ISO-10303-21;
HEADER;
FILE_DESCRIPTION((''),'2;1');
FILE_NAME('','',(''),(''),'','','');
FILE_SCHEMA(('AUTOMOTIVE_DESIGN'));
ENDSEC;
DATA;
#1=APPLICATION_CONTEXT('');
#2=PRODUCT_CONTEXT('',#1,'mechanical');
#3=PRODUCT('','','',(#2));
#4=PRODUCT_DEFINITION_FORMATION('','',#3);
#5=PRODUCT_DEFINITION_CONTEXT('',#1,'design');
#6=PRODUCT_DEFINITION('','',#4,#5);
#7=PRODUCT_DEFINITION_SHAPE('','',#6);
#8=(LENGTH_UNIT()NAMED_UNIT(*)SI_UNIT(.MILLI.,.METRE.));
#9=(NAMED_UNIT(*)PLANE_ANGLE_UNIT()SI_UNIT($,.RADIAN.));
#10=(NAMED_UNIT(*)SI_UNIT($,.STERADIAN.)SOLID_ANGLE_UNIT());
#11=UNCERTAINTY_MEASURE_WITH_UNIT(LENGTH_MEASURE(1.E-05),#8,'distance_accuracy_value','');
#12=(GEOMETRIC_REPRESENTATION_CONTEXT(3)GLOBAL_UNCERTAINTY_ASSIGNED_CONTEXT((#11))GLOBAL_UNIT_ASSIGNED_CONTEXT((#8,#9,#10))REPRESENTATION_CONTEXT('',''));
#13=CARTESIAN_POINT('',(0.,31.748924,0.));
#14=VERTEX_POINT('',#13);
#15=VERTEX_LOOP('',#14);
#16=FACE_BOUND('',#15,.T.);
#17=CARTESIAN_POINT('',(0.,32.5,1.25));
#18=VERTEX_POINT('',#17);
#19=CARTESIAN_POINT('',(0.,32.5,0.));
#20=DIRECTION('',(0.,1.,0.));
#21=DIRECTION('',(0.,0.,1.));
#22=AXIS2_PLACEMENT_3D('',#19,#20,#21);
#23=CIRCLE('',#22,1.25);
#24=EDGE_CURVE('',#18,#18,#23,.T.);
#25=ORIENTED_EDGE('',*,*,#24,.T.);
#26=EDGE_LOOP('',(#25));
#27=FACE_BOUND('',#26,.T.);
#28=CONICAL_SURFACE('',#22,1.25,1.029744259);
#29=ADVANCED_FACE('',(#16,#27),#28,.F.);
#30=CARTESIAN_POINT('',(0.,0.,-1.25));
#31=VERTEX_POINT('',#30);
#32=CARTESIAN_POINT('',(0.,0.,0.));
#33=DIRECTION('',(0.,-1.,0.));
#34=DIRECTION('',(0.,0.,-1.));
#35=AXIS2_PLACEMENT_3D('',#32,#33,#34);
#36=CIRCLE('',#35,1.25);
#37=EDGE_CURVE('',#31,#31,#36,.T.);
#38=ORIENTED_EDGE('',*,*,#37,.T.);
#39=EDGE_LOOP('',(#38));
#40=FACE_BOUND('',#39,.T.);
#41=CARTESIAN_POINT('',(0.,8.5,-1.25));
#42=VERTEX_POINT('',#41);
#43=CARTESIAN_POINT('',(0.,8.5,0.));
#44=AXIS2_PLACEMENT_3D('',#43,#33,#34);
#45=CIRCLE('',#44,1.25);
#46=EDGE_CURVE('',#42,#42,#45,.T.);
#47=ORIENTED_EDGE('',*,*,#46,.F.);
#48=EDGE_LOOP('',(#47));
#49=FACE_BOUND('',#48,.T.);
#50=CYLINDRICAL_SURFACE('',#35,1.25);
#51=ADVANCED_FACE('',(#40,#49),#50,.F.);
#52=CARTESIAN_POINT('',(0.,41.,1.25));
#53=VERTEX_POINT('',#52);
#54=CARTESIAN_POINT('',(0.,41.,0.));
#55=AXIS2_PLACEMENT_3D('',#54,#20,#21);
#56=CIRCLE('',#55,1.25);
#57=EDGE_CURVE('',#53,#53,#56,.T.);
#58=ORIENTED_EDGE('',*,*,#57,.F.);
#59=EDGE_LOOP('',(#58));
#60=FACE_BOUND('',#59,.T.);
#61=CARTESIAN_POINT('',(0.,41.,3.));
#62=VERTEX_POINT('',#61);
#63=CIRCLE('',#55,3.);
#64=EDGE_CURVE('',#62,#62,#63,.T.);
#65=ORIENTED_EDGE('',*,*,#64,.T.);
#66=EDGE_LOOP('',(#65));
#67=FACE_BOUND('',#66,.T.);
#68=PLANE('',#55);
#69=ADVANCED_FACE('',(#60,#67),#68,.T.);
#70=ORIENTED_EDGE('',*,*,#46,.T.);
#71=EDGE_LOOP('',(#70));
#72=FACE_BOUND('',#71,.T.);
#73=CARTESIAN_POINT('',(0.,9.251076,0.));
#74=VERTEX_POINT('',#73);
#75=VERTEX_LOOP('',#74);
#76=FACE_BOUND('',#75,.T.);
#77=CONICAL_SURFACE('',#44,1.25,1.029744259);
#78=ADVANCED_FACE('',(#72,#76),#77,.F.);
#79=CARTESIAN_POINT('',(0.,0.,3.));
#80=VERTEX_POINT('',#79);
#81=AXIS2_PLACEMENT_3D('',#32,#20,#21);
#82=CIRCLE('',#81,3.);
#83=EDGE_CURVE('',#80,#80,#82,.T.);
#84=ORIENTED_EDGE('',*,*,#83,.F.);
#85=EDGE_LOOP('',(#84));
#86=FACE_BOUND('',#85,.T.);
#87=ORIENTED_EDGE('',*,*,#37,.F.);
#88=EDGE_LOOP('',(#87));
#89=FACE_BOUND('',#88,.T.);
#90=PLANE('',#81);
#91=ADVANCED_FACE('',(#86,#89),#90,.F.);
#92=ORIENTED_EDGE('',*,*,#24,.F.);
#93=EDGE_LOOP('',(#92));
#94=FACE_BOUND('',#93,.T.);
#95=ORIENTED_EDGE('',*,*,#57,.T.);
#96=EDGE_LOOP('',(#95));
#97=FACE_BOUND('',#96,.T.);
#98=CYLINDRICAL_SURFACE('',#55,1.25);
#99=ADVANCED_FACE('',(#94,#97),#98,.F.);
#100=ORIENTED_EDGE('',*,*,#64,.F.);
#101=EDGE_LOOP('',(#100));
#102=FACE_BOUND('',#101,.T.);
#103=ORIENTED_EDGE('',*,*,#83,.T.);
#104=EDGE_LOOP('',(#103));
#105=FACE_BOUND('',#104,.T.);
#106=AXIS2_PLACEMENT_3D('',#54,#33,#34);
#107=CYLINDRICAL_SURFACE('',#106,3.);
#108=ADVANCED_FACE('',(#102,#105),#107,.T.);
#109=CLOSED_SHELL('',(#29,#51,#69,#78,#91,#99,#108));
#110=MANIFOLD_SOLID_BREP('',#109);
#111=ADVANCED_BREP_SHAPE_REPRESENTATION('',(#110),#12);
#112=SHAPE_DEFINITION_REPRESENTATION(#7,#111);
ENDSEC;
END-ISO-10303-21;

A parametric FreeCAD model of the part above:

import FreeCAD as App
import Part
import Sketcher
from FreeCAD import Vector
Q = App.Units.Quantity

doc = App.newDocument("Part")
body = doc.addObject("PartDesign::Body", "Body")

# Sketch on XZ plane
sketch1 = body.newObject("Sketcher::SketchObject", "Sketch")
sketch1.AttachmentSupport = (doc.getObject("XZ_Plane"), [""])
sketch1.MapMode = "FlatFace"
sketch1.addGeometry(Part.Circle(Vector(0, 0, 0), Vector(0, 0, 1), 3), False)
sketch1.addConstraint([
    Sketcher.Constraint("Coincident", 0, 3, -1, 1),
    Sketcher.Constraint("Diameter", 0, Q("6 mm")),
])
pad1 = body.newObject("PartDesign::Pad", "Pad")
pad1.Profile = sketch1
pad1.Length = 41
pad1.Reversed = True

# Sketch on XZ plane
sketch2 = body.newObject("Sketcher::SketchObject", "Sketch001")
sketch2.AttachmentSupport = (doc.getObject("XZ_Plane"), [""])
sketch2.MapMode = "FlatFace"
sketch2.AttachmentOffset = App.Placement(Vector(0, 0, -41), App.Rotation())
sketch2.addGeometry(Part.Circle(Vector(0, 0, 0), Vector(0, 0, 1), 1.2), False)
sketch2.addConstraint([
    Sketcher.Constraint("Coincident", 0, 3, -1, 1),
    Sketcher.Constraint("Diameter", 0, Q("2.5 mm")),
])
doc.recompute()
hole = body.newObject("PartDesign::Hole", "Hole")
hole.Profile = sketch2
hole.ThreadType = "None"
hole.Diameter = 2.5
hole.DepthType = "Dimension"
hole.Depth = 8.5
hole.DrillPoint = "Angled"
hole.DrillPointAngle = 118
hole.Reversed = True

# Sketch on XZ plane
sketch3 = body.newObject("Sketcher::SketchObject", "Sketch002")
sketch3.AttachmentSupport = (doc.getObject("XZ_Plane"), [""])
sketch3.MapMode = "FlatFace"
sketch3.addGeometry(Part.Circle(Vector(0, 0, 0), Vector(0, 0, 1), 1.2), False)
sketch3.addConstraint([
    Sketcher.Constraint("Coincident", 0, 3, -1, 1),
    Sketcher.Constraint("Diameter", 0, Q("2.5 mm")),
])
doc.recompute()
hole2 = body.newObject("PartDesign::Hole", "Hole001")
hole2.Profile = sketch3
hole2.ThreadType = "None"
hole2.Diameter = 2.5
hole2.DepthType = "Dimension"
hole2.Depth = 8.5
hole2.DrillPoint = "Angled"
hole2.DrillPointAngle = 118

doc.recompute()
